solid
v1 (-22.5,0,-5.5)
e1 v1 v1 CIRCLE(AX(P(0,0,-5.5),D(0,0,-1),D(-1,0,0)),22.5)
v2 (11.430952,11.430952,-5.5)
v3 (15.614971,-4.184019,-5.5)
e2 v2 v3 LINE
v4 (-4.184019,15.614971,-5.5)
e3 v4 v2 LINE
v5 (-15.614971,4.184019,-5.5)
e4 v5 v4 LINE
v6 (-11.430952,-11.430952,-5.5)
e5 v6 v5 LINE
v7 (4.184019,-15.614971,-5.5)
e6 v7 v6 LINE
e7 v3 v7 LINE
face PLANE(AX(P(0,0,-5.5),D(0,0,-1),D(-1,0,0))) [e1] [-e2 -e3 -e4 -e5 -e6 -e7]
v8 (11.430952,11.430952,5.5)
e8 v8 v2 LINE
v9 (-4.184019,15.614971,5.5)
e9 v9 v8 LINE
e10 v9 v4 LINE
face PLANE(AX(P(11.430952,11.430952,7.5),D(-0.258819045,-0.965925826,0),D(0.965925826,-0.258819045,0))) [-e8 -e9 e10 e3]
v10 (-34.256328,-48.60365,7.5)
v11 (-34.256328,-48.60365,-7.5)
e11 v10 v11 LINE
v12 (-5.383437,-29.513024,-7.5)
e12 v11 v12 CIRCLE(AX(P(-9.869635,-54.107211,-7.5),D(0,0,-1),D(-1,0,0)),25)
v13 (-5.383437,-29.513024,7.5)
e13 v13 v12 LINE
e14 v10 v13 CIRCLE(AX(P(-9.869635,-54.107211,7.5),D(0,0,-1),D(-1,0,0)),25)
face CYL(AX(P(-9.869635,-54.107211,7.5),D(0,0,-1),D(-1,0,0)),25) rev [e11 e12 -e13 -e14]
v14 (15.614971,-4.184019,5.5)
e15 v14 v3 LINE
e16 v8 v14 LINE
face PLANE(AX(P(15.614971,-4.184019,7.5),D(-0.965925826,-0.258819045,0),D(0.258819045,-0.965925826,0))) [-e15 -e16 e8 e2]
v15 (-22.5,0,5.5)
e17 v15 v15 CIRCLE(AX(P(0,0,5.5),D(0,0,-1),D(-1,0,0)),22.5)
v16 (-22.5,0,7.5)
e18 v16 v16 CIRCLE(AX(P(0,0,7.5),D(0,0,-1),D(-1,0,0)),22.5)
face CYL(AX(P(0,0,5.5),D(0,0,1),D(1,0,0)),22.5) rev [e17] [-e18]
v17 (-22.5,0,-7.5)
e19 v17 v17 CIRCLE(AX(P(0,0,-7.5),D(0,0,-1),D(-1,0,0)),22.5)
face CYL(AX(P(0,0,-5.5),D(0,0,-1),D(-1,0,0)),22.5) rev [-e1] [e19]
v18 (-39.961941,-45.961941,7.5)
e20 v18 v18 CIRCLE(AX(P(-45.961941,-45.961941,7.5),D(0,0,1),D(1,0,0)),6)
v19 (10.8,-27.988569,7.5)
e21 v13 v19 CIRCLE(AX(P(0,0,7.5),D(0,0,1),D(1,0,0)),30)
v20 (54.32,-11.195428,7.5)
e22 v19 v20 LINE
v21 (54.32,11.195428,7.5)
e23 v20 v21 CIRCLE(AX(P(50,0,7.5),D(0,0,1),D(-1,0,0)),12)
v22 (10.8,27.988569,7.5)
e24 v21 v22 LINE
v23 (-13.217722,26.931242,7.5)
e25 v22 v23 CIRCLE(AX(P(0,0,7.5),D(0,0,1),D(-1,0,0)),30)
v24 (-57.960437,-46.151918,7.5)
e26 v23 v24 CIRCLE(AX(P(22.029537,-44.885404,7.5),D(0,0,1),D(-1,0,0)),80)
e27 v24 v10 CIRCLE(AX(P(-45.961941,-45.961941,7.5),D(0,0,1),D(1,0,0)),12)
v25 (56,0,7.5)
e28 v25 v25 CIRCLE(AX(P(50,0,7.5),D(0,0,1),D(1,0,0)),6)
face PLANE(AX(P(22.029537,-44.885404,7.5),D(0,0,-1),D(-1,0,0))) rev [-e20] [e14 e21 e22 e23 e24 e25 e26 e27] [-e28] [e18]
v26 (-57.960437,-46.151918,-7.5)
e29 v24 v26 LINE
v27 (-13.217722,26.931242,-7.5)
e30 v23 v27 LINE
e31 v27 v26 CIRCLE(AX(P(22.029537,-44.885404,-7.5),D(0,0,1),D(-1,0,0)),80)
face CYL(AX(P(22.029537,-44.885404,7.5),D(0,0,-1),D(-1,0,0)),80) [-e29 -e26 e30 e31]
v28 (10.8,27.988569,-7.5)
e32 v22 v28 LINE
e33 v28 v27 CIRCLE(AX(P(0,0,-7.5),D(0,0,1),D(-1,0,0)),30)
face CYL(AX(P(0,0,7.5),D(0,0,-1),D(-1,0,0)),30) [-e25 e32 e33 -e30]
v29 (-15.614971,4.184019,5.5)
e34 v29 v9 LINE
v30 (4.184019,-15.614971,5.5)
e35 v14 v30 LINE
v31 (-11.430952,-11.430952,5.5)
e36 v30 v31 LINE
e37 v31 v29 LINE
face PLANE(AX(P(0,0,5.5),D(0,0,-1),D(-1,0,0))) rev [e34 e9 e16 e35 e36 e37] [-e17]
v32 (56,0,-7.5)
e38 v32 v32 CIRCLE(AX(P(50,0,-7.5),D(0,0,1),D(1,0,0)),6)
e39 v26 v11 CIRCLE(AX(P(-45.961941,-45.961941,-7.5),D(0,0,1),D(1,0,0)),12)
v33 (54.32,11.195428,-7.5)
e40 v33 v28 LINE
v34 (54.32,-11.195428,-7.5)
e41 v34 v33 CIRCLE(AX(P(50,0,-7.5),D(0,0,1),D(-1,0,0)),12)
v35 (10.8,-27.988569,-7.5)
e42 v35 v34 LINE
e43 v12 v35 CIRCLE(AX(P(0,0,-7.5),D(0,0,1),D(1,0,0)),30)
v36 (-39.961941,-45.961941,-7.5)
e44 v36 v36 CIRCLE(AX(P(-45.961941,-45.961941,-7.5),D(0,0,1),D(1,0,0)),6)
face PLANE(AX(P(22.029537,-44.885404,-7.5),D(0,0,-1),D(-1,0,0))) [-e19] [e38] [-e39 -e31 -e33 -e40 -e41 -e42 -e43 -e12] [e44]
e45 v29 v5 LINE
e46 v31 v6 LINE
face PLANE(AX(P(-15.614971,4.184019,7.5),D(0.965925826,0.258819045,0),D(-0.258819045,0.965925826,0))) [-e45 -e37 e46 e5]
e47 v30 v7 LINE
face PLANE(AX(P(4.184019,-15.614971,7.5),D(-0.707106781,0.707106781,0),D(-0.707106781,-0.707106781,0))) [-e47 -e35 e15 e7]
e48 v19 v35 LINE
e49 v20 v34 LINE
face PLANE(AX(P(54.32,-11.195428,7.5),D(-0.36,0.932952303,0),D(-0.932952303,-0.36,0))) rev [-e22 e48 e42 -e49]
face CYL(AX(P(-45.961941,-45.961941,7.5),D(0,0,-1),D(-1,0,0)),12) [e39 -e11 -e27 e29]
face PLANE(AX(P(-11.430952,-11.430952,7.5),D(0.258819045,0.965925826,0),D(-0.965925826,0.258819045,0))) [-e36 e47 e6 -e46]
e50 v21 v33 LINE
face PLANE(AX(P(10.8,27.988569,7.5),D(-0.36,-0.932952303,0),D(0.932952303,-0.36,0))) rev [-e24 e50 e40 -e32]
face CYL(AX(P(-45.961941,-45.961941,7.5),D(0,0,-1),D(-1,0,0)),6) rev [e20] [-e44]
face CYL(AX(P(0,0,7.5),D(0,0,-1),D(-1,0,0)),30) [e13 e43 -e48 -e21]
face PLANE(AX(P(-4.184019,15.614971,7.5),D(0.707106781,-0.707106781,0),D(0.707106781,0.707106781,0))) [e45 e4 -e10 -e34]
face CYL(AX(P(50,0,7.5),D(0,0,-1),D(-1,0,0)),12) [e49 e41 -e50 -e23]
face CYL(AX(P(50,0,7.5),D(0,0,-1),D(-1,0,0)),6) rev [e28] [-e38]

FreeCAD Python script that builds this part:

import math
import FreeCAD as App
import Part
import Sketcher

V = App.Vector
Q = App.Units.Quantity


def add_polygon(sketch, points):
    """Adds a closed chain of lines whose ends are joined by coincident constraints."""
    first, n = sketch.GeometryCount, len(points)
    for a, b in zip(points, points[1:] + points[:1]):
        sketch.addGeometry(Part.LineSegment(App.Vector(*a, 0), App.Vector(*b, 0)), False)
    for i in range(n):
        sketch.addConstraint(Sketcher.Constraint("Coincident", first + i, 2, first + (i + 1) % n, 1))

doc = App.newDocument("Part")
body = doc.addObject("PartDesign::Body", "Body")

# Sketch on XY plane
sketch1 = body.newObject("Sketcher::SketchObject", "Sketch")
sketch1.AttachmentSupport = (doc.getObject("XY_Plane"), [""])
sketch1.MapMode = "FlatFace"
sketch1.addGeometry(Part.LineSegment(V(54, 11, 0), V(11, 28, 0)), False)  # 0
sketch1.addGeometry(Part.ArcOfCircle(Part.Circle(V(0, 0, 0), V(0, 0, 1), 30), math.radians(69), math.radians(116)), False)  # 1
sketch1.addGeometry(Part.ArcOfCircle(Part.Circle(V(22, -45, 0), V(0, 0, 1), 80), math.radians(116), math.radians(181)), False)  # 2
sketch1.addGeometry(Part.ArcOfCircle(Part.Circle(V(-46, -46, 0), V(0, 0, 1), 12), math.radians(-179), math.radians(-13)), False)  # 3
sketch1.addGeometry(Part.ArcOfCircle(Part.Circle(V(-10, -54, 0), V(0, 0, 1), 25), math.radians(80), math.radians(167)), False)  # 4
sketch1.addGeometry(Part.ArcOfCircle(Part.Circle(V(0, 0, 0), V(0, 0, 1), 30), math.radians(-100), math.radians(-69)), False)  # 5
sketch1.addGeometry(Part.LineSegment(V(11, -28, 0), V(54, -11, 0)), False)  # 6
sketch1.addGeometry(Part.ArcOfCircle(Part.Circle(V(50, 0, 0), V(0, 0, 1), 12), math.radians(-69), math.radians(69)), False)  # 7
sketch1.addGeometry(Part.Circle(V(-46, -46, 0), V(0, 0, 1), 6), False)  # 8
sketch1.addGeometry(Part.Circle(V(50, 0, 0), V(0, 0, 1), 6), False)  # 9
add_polygon(sketch1, [(16, -4), (4, -16), (-11, -11), (-16, 4), (-4, 16), (11, 11)])  # lines 10-15
sketch1.addConstraint(Sketcher.Constraint("Tangent", 0, 2, 1, 1))
sketch1.addConstraint(Sketcher.Constraint("Tangent", 1, 2, 2, 1))
sketch1.addConstraint(Sketcher.Constraint("Tangent", 2, 2, 3, 1))
sketch1.addConstraint(Sketcher.Constraint("Tangent", 3, 2, 4, 2))
sketch1.addConstraint(Sketcher.Constraint("Tangent", 4, 1, 5, 1))
sketch1.addConstraint(Sketcher.Constraint("Tangent", 5, 2, 6, 1))
sketch1.addConstraint(Sketcher.Constraint("Tangent", 6, 2, 7, 1))
sketch1.addConstraint(Sketcher.Constraint("Tangent", 7, 2, 0, 1))
sketch1.addConstraint(Sketcher.Constraint("Coincident", 1, 3, -1, 1))
sketch1.addConstraint(Sketcher.Constraint("Coincident", 5, 3, -1, 1))
sketch1.addConstraint(Sketcher.Constraint("Coincident", 8, 3, 3, 3))
sketch1.addConstraint(Sketcher.Constraint("Coincident", 9, 3, 7, 3))
sketch1.addConstraint(Sketcher.Constraint("Equal", 1, 5))
sketch1.addConstraint(Sketcher.Constraint("Equal", 3, 7))
sketch1.addConstraint(Sketcher.Constraint("Equal", 8, 9))
sketch1.addConstraint(Sketcher.Constraint("Symmetric", 10, 2, 13, 2, -1, 1))
sketch1.addConstraint(Sketcher.Constraint("Symmetric", 11, 2, 14, 2, -1, 1))
sketch1.addConstraint(Sketcher.Constraint("Symmetric", 12, 2, 15, 2, -1, 1))
sketch1.addConstraint(Sketcher.Constraint("PointOnObject", 7, 3, -1))
sketch1.addConstraint(Sketcher.Constraint("Equal", 10, 11))
sketch1.addConstraint(Sketcher.Constraint("Equal", 11, 12))
sketch1.addConstraint(Sketcher.Constraint("Diameter", 8, 12.0))
sketch1.addConstraint(Sketcher.Constraint("Radius", 1, 30.0))
sketch1.addConstraint(Sketcher.Constraint("Radius", 2, 80.0))
sketch1.addConstraint(Sketcher.Constraint("Radius", 3, 12.0))
sketch1.addConstraint(Sketcher.Constraint("Radius", 4, 25.0))
sketch1.addConstraint(Sketcher.Constraint("Angle", 10, Q("-135 deg")))
sketch1.addConstraint(Sketcher.Constraint("Angle", 11, Q("165 deg")))
sketch1.addConstraint(Sketcher.Constraint("Angle", 12, Q("105 deg")))
sketch1.addConstraint(Sketcher.Constraint("DistanceX", -1, 1, 7, 3, 50.0))
sketch1.addConstraint(Sketcher.Constraint("DistanceY", 5, 2, 10, 2, 12.373598))
sketch1.addConstraint(Sketcher.Constraint("DistanceX", 3, 3, -1, 1, 45.961941))
sketch1.addConstraint(Sketcher.Constraint("DistanceY", 3, 3, -1, 1, 45.961941))
pad1 = body.newObject("PartDesign::Pad", "Pad")
pad1.Profile = sketch1
pad1.Length = 15
pad1.Midplane = True

# Sketch on XY plane
sketch2 = body.newObject("Sketcher::SketchObject", "Sketch001")
sketch2.AttachmentSupport = (doc.getObject("XY_Plane"), [""])
sketch2.MapMode = "FlatFace"
sketch2.AttachmentOffset = App.Placement(V(0, 0, -7.5), App.Rotation())
sketch2.addGeometry(Part.Circle(V(0, 0, 0), V(0, 0, 1), 22), False)
sketch2.addConstraint(Sketcher.Constraint("Coincident", 0, 3, -1, 1))
sketch2.addConstraint(Sketcher.Constraint("Diameter", 0, 45.0))
pocket1 = body.newObject("PartDesign::Pocket", "Pocket")
pocket1.Profile = sketch2
pocket1.Length = 2
pocket1.Reversed = True

# Sketch on XY plane
sketch3 = body.newObject("Sketcher::SketchObject", "Sketch002")
sketch3.AttachmentSupport = (doc.getObject("XY_Plane"), [""])
sketch3.MapMode = "FlatFace"
sketch3.AttachmentOffset = App.Placement(V(0, 0, 7.5), App.Rotation())
sketch3.addGeometry(Part.Circle(V(0, 0, 0), V(0, 0, 1), 22), False)
sketch3.addConstraint(Sketcher.Constraint("Coincident", 0, 3, -1, 1))
sketch3.addConstraint(Sketcher.Constraint("Diameter", 0, 45.0))
pocket2 = body.newObject("PartDesign::Pocket", "Pocket001")
pocket2.Profile = sketch3
pocket2.Length = 2

doc.recompute()
